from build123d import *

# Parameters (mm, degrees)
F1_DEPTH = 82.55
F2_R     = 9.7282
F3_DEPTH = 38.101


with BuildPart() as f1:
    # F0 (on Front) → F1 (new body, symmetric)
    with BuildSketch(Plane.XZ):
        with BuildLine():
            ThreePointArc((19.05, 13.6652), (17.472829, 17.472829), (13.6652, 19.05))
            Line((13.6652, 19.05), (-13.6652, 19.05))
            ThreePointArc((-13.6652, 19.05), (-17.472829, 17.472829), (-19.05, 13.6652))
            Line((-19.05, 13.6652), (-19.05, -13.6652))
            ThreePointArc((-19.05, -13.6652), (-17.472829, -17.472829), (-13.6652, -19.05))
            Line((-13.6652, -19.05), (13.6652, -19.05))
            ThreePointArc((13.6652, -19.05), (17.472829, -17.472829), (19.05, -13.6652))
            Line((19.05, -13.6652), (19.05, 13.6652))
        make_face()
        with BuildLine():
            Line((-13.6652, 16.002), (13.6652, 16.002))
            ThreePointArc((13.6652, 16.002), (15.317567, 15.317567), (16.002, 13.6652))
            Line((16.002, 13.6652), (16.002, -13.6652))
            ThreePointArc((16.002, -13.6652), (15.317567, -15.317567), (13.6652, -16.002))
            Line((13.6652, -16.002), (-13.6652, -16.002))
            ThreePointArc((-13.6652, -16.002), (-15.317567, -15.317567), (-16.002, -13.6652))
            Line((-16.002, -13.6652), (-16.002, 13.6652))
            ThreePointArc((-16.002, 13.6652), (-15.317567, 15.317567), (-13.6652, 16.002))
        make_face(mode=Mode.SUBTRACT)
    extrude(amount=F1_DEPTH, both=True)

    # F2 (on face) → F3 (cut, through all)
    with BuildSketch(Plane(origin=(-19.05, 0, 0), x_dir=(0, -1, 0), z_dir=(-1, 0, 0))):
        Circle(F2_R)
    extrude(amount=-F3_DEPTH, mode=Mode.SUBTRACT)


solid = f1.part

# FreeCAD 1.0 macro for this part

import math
import FreeCAD as App
import Part
import Sketcher

V = App.Vector
Q = App.Units.Quantity

doc = App.newDocument("Part")
body = doc.addObject("PartDesign::Body", "Body")

# Sketch on XZ plane
sketch1 = body.newObject("Sketcher::SketchObject", "Sketch")
sketch1.AttachmentSupport = (doc.getObject("XZ_Plane"), [""])
sketch1.MapMode = "FlatFace"
sketch1.addGeometry([
    Part.ArcOfCircle(Part.Circle(V(13.665201, 13.665201, 0), V(0, 0, 1), 5.384799), math.radians(-0.000015), math.radians(90.000015)),  # 0
    Part.LineSegment(V(13.6652, 19.05, 0), V(-13.6652, 19.05, 0)),  # 1
    Part.ArcOfCircle(Part.Circle(V(-13.665201, 13.665201, 0), V(0, 0, 1), 5.384799), math.radians(89.999985), math.radians(180.000015)),  # 2
    Part.LineSegment(V(-19.05, 13.6652, 0), V(-19.05, -13.6652, 0)),  # 3
    Part.ArcOfCircle(Part.Circle(V(-13.665201, -13.665201, 0), V(0, 0, 1), 5.384799), math.radians(179.999985), math.radians(270.000015)),  # 4
    Part.LineSegment(V(-13.6652, -19.05, 0), V(13.6652, -19.05, 0)),  # 5
    Part.ArcOfCircle(Part.Circle(V(13.665201, -13.665201, 0), V(0, 0, 1), 5.384799), math.radians(-90.000015), math.radians(0.000015)),  # 6
    Part.LineSegment(V(19.05, -13.6652, 0), V(19.05, 13.6652, 0)),  # 7
    Part.ArcOfCircle(Part.Circle(V(-13.6652, 13.6652, 0), V(0, 0, 1), 2.3368), math.radians(90.000011), math.radians(179.999989)),  # 8
    Part.LineSegment(V(-13.6652, 16.002, 0), V(13.6652, 16.002, 0)),  # 9
    Part.ArcOfCircle(Part.Circle(V(13.6652, 13.6652, 0), V(0, 0, 1), 2.3368), math.radians(0.000011), math.radians(89.999989)),  # 10
    Part.LineSegment(V(16.002, 13.6652, 0), V(16.002, -13.6652, 0)),  # 11
    Part.ArcOfCircle(Part.Circle(V(13.6652, -13.6652, 0), V(0, 0, 1), 2.3368), math.radians(-89.999989), math.radians(-0.000011)),  # 12
    Part.LineSegment(V(13.6652, -16.002, 0), V(-13.6652, -16.002, 0)),  # 13
    Part.ArcOfCircle(Part.Circle(V(-13.6652, -13.6652, 0), V(0, 0, 1), 2.3368), math.radians(-179.999989), math.radians(-90.000011)),  # 14
    Part.LineSegment(V(-16.002, -13.6652, 0), V(-16.002, 13.6652, 0)),  # 15
], False)
sketch1.addConstraint([
    Sketcher.Constraint("Tangent", 0, 2, 1, 1),
    Sketcher.Constraint("Tangent", 1, 2, 2, 1),
    Sketcher.Constraint("Tangent", 2, 2, 3, 1),
    Sketcher.Constraint("Tangent", 3, 2, 4, 1),
    Sketcher.Constraint("Tangent", 4, 2, 5, 1),
    Sketcher.Constraint("Tangent", 5, 2, 6, 1),
    Sketcher.Constraint("Tangent", 6, 2, 7, 1),
    Sketcher.Constraint("Tangent", 7, 2, 0, 1),
    Sketcher.Constraint("Tangent", 8, 1, 9, 1),
    Sketcher.Constraint("Tangent", 9, 2, 10, 2),
    Sketcher.Constraint("Tangent", 10, 1, 11, 1),
    Sketcher.Constraint("Tangent", 11, 2, 12, 2),
    Sketcher.Constraint("Tangent", 12, 1, 13, 1),
    Sketcher.Constraint("Tangent", 13, 2, 14, 2),
    Sketcher.Constraint("Tangent", 14, 1, 15, 1),
    Sketcher.Constraint("Tangent", 15, 2, 8, 2),
    Sketcher.Constraint("Horizontal", 1),
    Sketcher.Constraint("Vertical", 3),
    Sketcher.Constraint("Horizontal", 5),
    Sketcher.Constraint("Vertical", 7),
    Sketcher.Constraint("Horizontal", 9),
    Sketcher.Constraint("Vertical", 11),
    Sketcher.Constraint("Horizontal", 13),
    Sketcher.Constraint("Vertical", 15),
    Sketcher.Constraint("Coincident", 8, 3, 2, 3),
    Sketcher.Constraint("Coincident", 10, 3, 0, 3),
    Sketcher.Constraint("Coincident", 12, 3, 6, 3),
    Sketcher.Constraint("Equal", 0, 2),
    Sketcher.Constraint("Equal", 2, 4),
    Sketcher.Constraint("Equal", 4, 6),
    Sketcher.Constraint("Equal", 12, 14),
    Sketcher.Constraint("Symmetric", 0, 3, 4, 3, -1, 1),
    Sketcher.Constraint("Equal", 13, 3),
    Sketcher.Constraint("Radius", 0, Q("0.2119999 in")),
    Sketcher.Constraint("Radius", 8, Q("0.092 in")),
    Sketcher.Constraint("DistanceX", 1, 2, 1, 1, Q("1.076 in")),
])
pad1 = body.newObject("PartDesign::Pad", "Pad")
pad1.Profile = sketch1
pad1.Length = Q("6.5 in")
pad1.Midplane = True

# Sketch on YZ plane
sketch2 = body.newObject("Sketcher::SketchObject", "Sketch001")
sketch2.AttachmentSupport = (doc.getObject("YZ_Plane"), [""])
sketch2.MapMode = "FlatFace"
sketch2.AttachmentOffset = App.Placement(V(0, 0, -0.75 * 25.4), App.Rotation())
sketch2.addGeometry(Part.Circle(V(0, 0, 0), V(0, 0, 1), 9.7282), False)
sketch2.addConstraint([
    Sketcher.Constraint("Coincident", 0, 3, -1, 1),
    Sketcher.Constraint("Diameter", 0, Q("0.766 in")),
])
pocket1 = body.newObject("PartDesign::Pocket", "Pocket")
pocket1.Profile = sketch2
pocket1.Type = "ThroughAll"
pocket1.Reversed = True

doc.recompute()
